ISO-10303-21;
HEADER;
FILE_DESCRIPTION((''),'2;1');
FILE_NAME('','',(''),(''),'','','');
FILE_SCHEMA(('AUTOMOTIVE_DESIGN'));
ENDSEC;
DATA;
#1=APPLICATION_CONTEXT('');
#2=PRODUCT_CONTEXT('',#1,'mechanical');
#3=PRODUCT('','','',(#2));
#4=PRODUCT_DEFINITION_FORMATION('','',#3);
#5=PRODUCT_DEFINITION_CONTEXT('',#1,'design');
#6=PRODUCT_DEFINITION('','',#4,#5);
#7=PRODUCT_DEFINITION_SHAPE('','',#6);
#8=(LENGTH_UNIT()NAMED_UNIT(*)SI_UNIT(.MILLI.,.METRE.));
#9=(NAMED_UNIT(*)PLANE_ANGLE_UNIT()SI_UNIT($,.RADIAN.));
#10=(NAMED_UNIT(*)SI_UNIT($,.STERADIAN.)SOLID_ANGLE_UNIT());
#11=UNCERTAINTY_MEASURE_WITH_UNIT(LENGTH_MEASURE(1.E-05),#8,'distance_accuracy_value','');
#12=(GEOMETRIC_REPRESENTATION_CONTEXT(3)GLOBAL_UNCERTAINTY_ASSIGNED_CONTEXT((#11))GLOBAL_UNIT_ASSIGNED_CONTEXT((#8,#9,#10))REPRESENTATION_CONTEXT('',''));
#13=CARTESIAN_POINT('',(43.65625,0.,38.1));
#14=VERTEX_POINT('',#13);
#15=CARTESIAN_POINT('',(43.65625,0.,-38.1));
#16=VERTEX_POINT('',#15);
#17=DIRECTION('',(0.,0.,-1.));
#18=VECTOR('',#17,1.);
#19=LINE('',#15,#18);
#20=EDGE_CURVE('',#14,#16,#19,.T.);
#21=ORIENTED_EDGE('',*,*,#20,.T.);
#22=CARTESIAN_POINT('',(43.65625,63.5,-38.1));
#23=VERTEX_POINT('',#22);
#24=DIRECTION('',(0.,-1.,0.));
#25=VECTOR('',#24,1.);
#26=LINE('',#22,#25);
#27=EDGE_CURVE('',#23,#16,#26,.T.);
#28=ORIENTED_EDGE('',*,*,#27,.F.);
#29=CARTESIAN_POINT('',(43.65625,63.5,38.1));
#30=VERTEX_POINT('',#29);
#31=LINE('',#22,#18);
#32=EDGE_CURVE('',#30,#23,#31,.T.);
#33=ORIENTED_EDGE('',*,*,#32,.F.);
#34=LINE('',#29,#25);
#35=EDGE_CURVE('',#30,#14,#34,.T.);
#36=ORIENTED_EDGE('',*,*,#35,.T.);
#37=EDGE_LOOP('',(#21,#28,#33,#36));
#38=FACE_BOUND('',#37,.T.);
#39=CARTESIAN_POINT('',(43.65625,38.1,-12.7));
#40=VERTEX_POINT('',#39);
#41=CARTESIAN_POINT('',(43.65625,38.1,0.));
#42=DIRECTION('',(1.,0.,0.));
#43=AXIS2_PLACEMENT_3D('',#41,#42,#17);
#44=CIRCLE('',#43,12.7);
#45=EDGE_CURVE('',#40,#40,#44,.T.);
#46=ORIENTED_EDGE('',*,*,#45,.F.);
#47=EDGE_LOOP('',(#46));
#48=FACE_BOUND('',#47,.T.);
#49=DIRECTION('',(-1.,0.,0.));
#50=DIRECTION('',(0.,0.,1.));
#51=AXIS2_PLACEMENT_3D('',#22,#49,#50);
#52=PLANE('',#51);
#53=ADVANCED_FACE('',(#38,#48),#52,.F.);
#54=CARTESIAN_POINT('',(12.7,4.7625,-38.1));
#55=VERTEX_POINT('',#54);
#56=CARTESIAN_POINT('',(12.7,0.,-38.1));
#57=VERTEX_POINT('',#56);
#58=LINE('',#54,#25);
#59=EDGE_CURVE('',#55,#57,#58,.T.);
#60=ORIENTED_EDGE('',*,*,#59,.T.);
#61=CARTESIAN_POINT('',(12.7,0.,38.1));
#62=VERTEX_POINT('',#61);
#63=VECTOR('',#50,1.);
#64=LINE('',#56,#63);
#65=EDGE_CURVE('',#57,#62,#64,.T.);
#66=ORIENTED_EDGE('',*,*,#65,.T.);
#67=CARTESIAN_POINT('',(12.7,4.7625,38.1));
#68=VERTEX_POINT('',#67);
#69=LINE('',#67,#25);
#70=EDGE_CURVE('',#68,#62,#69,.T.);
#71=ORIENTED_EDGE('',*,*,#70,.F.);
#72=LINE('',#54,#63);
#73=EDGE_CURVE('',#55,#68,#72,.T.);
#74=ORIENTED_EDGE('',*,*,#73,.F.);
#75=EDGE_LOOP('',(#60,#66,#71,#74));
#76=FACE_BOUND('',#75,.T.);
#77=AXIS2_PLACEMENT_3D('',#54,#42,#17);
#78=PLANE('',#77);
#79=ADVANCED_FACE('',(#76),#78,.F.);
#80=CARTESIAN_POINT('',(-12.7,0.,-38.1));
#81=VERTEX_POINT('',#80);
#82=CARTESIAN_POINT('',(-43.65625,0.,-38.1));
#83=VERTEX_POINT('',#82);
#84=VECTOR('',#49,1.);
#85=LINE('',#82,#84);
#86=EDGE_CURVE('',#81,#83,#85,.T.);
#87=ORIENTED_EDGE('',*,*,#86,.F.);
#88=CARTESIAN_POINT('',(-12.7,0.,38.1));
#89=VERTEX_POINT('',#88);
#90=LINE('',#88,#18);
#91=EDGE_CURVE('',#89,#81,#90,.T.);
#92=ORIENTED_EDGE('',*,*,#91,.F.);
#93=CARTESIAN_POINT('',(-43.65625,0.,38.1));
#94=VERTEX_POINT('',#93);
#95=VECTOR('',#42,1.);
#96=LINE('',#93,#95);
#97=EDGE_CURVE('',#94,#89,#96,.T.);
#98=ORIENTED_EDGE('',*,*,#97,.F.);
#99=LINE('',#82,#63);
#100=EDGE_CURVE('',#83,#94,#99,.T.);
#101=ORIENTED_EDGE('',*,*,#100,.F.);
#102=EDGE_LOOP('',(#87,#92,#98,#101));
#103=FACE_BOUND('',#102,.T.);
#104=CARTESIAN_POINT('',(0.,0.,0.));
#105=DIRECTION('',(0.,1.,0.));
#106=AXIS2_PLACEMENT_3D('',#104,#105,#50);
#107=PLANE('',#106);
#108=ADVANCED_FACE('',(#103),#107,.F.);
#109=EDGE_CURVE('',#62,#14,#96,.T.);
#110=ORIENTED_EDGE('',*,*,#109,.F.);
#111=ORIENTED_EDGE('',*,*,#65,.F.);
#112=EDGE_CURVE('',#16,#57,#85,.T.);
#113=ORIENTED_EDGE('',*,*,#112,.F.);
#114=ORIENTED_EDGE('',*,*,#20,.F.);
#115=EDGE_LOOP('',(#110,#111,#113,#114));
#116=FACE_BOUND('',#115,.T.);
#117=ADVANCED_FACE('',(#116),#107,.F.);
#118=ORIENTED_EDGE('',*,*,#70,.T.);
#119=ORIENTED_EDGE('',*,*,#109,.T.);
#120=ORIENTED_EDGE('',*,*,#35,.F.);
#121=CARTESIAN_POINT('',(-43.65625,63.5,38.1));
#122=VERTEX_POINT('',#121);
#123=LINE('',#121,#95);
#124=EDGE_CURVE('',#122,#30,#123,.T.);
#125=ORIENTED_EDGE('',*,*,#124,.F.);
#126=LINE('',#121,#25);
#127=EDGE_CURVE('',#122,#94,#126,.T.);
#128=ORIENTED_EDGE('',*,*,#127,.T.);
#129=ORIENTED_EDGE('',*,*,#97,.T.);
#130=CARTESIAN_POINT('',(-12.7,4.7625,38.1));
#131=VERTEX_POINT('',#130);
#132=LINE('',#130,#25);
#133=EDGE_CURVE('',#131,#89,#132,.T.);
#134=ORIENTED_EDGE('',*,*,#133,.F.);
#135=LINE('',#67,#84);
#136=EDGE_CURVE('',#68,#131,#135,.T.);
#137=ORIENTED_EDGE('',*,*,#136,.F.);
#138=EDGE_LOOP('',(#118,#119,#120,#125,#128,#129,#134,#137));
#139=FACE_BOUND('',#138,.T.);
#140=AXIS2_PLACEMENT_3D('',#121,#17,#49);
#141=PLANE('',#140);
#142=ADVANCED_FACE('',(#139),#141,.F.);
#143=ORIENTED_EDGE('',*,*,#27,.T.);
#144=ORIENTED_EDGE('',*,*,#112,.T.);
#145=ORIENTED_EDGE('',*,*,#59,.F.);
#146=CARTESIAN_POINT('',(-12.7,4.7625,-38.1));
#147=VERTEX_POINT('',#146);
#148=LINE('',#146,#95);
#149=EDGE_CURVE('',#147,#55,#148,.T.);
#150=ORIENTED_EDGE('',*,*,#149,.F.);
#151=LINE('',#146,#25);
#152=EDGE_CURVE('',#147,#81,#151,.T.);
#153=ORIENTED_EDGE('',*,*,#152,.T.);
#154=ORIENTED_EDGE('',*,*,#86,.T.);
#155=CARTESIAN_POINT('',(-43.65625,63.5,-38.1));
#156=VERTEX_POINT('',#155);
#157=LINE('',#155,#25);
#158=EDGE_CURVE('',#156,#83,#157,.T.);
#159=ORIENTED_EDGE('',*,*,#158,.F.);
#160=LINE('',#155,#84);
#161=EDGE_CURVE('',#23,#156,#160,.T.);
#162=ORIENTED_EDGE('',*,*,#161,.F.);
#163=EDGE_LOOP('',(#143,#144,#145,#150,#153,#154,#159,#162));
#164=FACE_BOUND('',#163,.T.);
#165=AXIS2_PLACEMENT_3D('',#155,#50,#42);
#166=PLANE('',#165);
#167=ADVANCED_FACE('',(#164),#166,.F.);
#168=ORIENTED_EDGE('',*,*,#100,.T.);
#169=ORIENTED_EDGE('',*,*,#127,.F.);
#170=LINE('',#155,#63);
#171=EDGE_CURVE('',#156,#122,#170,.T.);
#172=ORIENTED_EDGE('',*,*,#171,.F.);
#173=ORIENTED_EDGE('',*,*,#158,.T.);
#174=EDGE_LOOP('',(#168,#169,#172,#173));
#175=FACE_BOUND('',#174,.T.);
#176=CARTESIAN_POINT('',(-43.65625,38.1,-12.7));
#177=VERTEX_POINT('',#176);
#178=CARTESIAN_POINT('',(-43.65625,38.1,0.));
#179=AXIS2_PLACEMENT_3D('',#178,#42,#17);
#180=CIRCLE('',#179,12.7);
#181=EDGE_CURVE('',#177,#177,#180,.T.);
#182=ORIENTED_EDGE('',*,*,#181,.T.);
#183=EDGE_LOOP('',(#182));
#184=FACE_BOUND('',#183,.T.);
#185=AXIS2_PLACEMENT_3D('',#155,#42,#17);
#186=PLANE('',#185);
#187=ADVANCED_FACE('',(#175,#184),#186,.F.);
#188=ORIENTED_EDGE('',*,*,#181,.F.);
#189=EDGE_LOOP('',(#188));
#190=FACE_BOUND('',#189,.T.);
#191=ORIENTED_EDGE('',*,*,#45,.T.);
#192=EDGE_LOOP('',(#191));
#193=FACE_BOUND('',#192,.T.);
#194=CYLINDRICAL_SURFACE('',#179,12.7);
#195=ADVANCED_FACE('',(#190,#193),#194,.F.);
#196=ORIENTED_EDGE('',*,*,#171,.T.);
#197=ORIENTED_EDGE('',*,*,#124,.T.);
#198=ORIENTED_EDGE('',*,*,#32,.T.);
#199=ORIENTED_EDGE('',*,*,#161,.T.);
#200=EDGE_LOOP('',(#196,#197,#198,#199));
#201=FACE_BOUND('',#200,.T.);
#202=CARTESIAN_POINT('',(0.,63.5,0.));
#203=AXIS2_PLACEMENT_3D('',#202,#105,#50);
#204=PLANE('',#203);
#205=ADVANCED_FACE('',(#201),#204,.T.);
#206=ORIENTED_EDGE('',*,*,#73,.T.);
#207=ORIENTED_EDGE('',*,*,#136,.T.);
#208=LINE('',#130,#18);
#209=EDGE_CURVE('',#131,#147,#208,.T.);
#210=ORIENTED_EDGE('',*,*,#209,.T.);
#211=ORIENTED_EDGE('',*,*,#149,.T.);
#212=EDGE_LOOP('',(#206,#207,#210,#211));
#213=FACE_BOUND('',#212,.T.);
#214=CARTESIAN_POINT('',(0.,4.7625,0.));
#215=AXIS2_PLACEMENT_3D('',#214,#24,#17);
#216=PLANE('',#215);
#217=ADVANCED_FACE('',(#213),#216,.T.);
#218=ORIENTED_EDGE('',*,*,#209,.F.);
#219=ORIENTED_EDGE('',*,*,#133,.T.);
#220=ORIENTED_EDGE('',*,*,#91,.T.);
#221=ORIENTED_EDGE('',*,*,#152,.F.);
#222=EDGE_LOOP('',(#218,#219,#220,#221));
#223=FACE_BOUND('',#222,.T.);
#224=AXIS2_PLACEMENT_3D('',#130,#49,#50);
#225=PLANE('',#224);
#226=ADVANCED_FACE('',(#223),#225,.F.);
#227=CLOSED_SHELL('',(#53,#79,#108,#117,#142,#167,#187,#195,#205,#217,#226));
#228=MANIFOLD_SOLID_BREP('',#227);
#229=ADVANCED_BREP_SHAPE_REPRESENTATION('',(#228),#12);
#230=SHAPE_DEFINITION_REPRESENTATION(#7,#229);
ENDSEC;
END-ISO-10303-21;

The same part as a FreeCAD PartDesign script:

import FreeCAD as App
import Part
import Sketcher
from FreeCAD import Vector
Q = App.Units.Quantity


def add_polygon(sketch, points):
    """Adds a closed chain of lines whose ends are joined by coincident constraints."""
    first, n = sketch.GeometryCount, len(points)
    for a, b in zip(points, points[1:] + points[:1]):
        sketch.addGeometry(Part.LineSegment(App.Vector(*a, 0), App.Vector(*b, 0)), False)
    for i in range(n):
        sketch.addConstraint(Sketcher.Constraint("Coincident", first + i, 2, first + (i + 1) % n, 1))

doc = App.newDocument("Part")
params = doc.addObject("Spreadsheet::Sheet", "Params")
for row, (alias, value) in enumerate([
    ("sketch1_height", "3 in"),
    ("sketch1_width", "3.4375 in"),
    ("pad1_length", "2.5 in"),
    ("sketch2_width", "1 in"),
    ("sketch2_height", "3 in"),
    ("pocket1_length", "0.1875 in"),
    ("sketch3_diameter", "1 in"),
], start=1):
    params.set(f"A{row}", alias)
    params.set(f"B{row}", "=" + value)
    params.setAlias(f"B{row}", alias)

body = doc.addObject("PartDesign::Body", "Body")

# Sketch on XZ plane
sketch1 = doc.addObject("Sketcher::SketchObject", "Sketch")
body.addObject(sketch1)
sketch1.AttachmentSupport = (doc.XZ_Plane, [""])
sketch1.MapMode = "FlatFace"
add_polygon(sketch1, [(-44, -38), (-44, 38), (44, 38), (44, -38)])  # lines 0-3
sketch1.addConstraint(Sketcher.Constraint("Vertical", 0))
sketch1.addConstraint(Sketcher.Constraint("Horizontal", 1))
sketch1.addConstraint(Sketcher.Constraint("Vertical", 2))
sketch1.addConstraint(Sketcher.Constraint("Horizontal", 3))
sketch1.addConstraint(Sketcher.Constraint("Symmetric", 0, 2, 2, 2, -1, 1))
sketch1.addConstraint(Sketcher.Constraint("DistanceY", 0, 1, 0, 2, Q("3 in")))
sketch1.addConstraint(Sketcher.Constraint("DistanceX", 1, 1, 1, 2, Q("3.4375 in")))
sketch1.setExpression("Constraints[9]", "Params.sketch1_height")
sketch1.setExpression("Constraints[10]", "Params.sketch1_width")
pad1 = doc.addObject("PartDesign::Pad", "Pad")
body.addObject(pad1)
pad1.Profile = sketch1
pad1.setExpression("Length", "Params.pad1_length")
pad1.Reversed = True

# Sketch on XZ plane
sketch2 = doc.addObject("Sketcher::SketchObject", "Sketch001")
body.addObject(sketch2)
sketch2.AttachmentSupport = (doc.XZ_Plane, [""])
sketch2.MapMode = "FlatFace"
add_polygon(sketch2, [(-13, 38), (-13, -38), (13, -38), (13, 38)])  # lines 0-3
sketch2.addConstraint(Sketcher.Constraint("Vertical", 0))
sketch2.addConstraint(Sketcher.Constraint("Horizontal", 1))
sketch2.addConstraint(Sketcher.Constraint("Vertical", 2))
sketch2.addConstraint(Sketcher.Constraint("Horizontal", 3))
sketch2.addConstraint(Sketcher.Constraint("Symmetric", 0, 2, 2, 2, -1, 1))
sketch2.addConstraint(Sketcher.Constraint("DistanceX", 1, 1, 1, 2, Q("1 in")))
sketch2.addConstraint(Sketcher.Constraint("DistanceY", 0, 2, 0, 1, Q("3 in")))
sketch2.setExpression("Constraints[9]", "Params.sketch2_width")
sketch2.setExpression("Constraints[10]", "Params.sketch2_height")
pocket1 = doc.addObject("PartDesign::Pocket", "Pocket")
body.addObject(pocket1)
pocket1.Profile = sketch2
pocket1.setExpression("Length", "Params.pocket1_length")

# Sketch on YZ plane
sketch3 = doc.addObject("Sketcher::SketchObject", "Sketch002")
body.addObject(sketch3)
sketch3.AttachmentSupport = (doc.YZ_Plane, [""])
sketch3.MapMode = "FlatFace"
sketch3.AttachmentOffset = App.Placement(Vector(0, 0, 1.71875 * 25.4), App.Rotation())
sketch3.addGeometry(Part.Circle(Vector(38, 0, 0), Vector(0, 0, 1), 13), False)
sketch3.addConstraint(Sketcher.Constraint("PointOnObject", 0, 3, -1))
sketch3.addConstraint(Sketcher.Constraint("Diameter", 0, Q("1 in")))
sketch3.addConstraint(Sketcher.Constraint("DistanceX", -1, 1, 0, 3, Q("1.5 in")))
sketch3.setExpression("Constraints[1]", "Params.sketch3_diameter")
pocket2 = doc.addObject("PartDesign::Pocket", "Pocket001")
body.addObject(pocket2)
pocket2.Profile = sketch3
pocket2.Type = "ThroughAll"

doc.recompute()
